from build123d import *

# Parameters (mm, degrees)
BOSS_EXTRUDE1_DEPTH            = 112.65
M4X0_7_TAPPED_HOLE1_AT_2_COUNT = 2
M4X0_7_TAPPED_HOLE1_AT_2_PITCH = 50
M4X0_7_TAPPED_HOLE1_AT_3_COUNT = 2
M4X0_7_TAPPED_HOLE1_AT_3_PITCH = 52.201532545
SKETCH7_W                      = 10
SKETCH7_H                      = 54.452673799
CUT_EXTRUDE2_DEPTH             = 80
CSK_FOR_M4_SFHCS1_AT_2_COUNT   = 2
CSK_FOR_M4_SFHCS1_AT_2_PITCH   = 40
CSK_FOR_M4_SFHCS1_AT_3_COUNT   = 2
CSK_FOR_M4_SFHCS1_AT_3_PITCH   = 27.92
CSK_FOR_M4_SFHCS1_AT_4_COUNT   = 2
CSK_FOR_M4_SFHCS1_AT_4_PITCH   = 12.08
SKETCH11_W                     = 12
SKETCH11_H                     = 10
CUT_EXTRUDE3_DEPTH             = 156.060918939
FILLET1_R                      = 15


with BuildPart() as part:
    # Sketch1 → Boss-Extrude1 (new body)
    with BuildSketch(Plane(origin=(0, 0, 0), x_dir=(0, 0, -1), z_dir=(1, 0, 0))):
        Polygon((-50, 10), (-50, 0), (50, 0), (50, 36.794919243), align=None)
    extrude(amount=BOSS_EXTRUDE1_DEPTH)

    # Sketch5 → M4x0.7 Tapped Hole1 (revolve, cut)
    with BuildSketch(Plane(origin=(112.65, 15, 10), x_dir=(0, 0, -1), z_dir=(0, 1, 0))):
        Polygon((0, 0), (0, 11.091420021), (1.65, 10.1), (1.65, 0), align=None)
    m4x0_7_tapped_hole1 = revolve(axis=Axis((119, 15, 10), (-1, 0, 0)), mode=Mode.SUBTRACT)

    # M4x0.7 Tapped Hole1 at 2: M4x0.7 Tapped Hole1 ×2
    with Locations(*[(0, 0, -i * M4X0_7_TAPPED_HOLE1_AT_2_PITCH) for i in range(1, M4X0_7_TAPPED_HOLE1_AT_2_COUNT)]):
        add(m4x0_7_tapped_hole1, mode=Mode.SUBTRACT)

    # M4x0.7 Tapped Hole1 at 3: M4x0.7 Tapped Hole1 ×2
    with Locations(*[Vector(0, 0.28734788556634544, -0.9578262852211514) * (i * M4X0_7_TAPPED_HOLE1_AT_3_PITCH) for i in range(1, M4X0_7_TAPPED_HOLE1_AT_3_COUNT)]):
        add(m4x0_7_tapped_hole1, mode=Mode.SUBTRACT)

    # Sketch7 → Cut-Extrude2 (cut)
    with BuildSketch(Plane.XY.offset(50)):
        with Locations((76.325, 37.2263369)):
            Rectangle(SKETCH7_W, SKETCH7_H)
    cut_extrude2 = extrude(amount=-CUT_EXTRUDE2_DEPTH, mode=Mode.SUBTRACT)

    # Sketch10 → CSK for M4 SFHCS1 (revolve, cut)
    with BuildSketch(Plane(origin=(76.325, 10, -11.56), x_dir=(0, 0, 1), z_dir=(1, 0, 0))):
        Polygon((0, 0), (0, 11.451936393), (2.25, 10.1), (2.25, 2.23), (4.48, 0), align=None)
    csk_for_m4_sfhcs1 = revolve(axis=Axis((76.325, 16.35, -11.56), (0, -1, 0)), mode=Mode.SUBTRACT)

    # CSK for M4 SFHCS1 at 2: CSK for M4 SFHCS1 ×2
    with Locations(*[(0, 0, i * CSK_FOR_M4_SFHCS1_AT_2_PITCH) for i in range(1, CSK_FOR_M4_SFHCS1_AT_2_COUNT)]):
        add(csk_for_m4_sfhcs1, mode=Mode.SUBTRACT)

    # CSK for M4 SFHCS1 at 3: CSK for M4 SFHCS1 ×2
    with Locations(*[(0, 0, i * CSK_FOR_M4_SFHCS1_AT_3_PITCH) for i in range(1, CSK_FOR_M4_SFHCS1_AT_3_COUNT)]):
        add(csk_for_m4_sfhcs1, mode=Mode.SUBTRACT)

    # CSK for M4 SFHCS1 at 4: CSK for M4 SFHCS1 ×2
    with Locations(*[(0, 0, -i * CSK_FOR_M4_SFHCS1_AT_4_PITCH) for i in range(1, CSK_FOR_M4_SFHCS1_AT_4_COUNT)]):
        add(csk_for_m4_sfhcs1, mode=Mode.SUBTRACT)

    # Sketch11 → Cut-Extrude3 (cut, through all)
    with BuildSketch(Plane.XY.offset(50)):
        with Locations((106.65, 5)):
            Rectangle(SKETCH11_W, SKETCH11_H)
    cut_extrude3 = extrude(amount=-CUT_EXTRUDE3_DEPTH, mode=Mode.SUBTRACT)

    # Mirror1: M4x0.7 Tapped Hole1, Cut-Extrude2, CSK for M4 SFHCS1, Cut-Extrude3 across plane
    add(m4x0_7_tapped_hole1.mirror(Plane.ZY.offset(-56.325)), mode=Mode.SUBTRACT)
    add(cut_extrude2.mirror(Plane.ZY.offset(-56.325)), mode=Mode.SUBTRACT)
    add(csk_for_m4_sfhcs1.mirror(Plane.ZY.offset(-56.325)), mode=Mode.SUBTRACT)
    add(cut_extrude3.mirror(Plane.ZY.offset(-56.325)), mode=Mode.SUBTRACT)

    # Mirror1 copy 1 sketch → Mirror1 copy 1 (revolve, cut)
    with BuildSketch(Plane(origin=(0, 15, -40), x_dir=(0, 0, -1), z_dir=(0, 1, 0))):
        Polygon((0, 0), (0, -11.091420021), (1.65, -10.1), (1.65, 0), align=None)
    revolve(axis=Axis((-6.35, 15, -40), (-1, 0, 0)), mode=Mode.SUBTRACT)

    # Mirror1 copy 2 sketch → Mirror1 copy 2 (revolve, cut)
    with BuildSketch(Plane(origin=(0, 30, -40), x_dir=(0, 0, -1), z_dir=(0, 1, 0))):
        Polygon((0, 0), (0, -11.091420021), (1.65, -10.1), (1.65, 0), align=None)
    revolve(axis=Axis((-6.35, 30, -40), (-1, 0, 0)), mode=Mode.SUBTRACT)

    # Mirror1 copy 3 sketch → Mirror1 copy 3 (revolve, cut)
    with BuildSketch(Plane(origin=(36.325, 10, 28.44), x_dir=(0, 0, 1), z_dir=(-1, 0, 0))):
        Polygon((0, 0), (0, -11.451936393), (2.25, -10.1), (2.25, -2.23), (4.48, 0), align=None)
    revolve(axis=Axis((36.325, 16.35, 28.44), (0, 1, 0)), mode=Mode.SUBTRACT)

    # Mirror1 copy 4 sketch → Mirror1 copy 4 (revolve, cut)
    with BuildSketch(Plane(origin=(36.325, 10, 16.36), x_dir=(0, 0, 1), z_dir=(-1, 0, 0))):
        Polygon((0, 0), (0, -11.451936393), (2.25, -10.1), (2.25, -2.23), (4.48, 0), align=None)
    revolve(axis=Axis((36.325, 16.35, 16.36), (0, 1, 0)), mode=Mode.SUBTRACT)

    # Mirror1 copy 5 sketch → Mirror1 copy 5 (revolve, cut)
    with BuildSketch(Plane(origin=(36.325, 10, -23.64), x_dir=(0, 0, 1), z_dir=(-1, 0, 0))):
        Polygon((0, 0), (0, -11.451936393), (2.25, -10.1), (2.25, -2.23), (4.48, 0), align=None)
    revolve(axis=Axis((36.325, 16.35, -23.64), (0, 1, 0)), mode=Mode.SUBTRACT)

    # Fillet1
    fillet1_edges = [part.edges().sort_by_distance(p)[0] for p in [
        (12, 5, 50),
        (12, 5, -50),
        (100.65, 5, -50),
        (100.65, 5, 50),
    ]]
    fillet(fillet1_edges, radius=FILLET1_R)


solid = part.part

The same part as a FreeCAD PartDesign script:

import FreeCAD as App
import Part
import Sketcher

V = App.Vector
Q = App.Units.Quantity


def edges_at(feature, points):
    """Names of the edges that pass closest to the given points."""
    edges = feature.Shape.Edges
    near = lambda p: min(range(len(edges)), key=lambda i: edges[i].distToShape(Part.Vertex(*p))[0])
    return sorted({f"Edge{near(p) + 1}" for p in points})


def add_polygon(sketch, points):
    """Adds a closed chain of lines whose ends are joined by coincident constraints."""
    first, n = sketch.GeometryCount, len(points)
    for a, b in zip(points, points[1:] + points[:1]):
        sketch.addGeometry(Part.LineSegment(App.Vector(*a, 0), App.Vector(*b, 0)), False)
    for i in range(n):
        sketch.addConstraint(Sketcher.Constraint("Coincident", first + i, 2, first + (i + 1) % n, 1))

doc = App.newDocument("Part")
body = doc.addObject("PartDesign::Body", "Body")

# Sketch on YZ plane
sketch1 = doc.addObject("Sketcher::SketchObject", "Sketch")
body.addObject(sketch1)
sketch1.AttachmentSupport = (doc.YZ_Plane, [""])
sketch1.MapMode = "FlatFace"
add_polygon(sketch1, [(10, 50), (0, 50), (0, -50), (36.794919, -50)])  # lines 0-3
sketch1.addConstraint([
    Sketcher.Constraint("Horizontal", 0),
    Sketcher.Constraint("Vertical", 1),
    Sketcher.Constraint("Horizontal", 2),
    Sketcher.Constraint("Symmetric", 0, 2, 1, 2, -1, 1),
    Sketcher.Constraint("DistanceX", 0, 2, 0, 1, 10.0),
    Sketcher.Constraint("DistanceY", 1, 2, 1, 1, 100.0),
    Sketcher.Constraint("Angle", 3, Q("105 deg")),
])
pad1 = doc.addObject("PartDesign::Pad", "Pad")
body.addObject(pad1)
pad1.Profile = sketch1
pad1.Length = 112.65

# Sketch on XZ plane
sketch2 = doc.addObject("Sketcher::SketchObject", "Sketch001")
body.addObject(sketch2)
sketch2.AttachmentSupport = (doc.XZ_Plane, [""])
sketch2.MapMode = "FlatFace"
sketch2.AttachmentOffset = App.Placement(V(0, 0, -15), App.Rotation())
add_polygon(sketch2, [(101.55858, 10), (112.65, 10), (112.65, 8.35), (102.55, 8.35)])  # lines 0-3
sketch2.addGeometry(Part.LineSegment(V(112.65, 10, 0), V(101.55858, 10, 0)), True)  # axis
sketch2.addConstraint([
    Sketcher.Constraint("Horizontal", 0),
    Sketcher.Constraint("Vertical", 1),
    Sketcher.Constraint("Horizontal", 2),
    Sketcher.Constraint("Horizontal", 4),
    Sketcher.Constraint("Coincident", 4, 1, 0, 2),
    Sketcher.Constraint("Equal", 0, 4),
    Sketcher.Constraint("Angle", 3, Q("121 deg")),
    Sketcher.Constraint("DistanceX", 2, 2, 2, 1, 10.1),
    Sketcher.Constraint("DistanceY", -1, 1, 0, 2, 10.0),
    Sketcher.Constraint("DistanceY", 1, 2, 1, 1, 1.65),
    Sketcher.Constraint("DistanceX", -1, 1, 0, 2, 112.65),
])
groove = doc.addObject("PartDesign::Groove", "Groove")
body.addObject(groove)
groove.Profile = sketch2
groove.ReferenceAxis = (sketch2, ["Axis0"])
groove.Angle = 360
doc.recompute()

linearpattern = doc.addObject("PartDesign::LinearPattern", "LinearPattern")
body.addObject(linearpattern)
linearpattern.Originals = [groove]
linearpattern.Direction = (doc.Z_Axis, [""])
linearpattern.Mode = "offset"
linearpattern.Offset = 50
linearpattern.Occurrences = 2
linearpattern.Reversed = True
body.Tip = linearpattern
doc.recompute()

datumline = doc.addObject("PartDesign::Line", "DatumLine")
body.addObject(datumline)
datumline.Placement = App.Placement(V(0, 0, 0), App.Rotation(V(0, 0, 1), V(0, 0.287347886, -0.957826285)))
linearpattern2 = doc.addObject("PartDesign::LinearPattern", "LinearPattern001")
body.addObject(linearpattern2)
linearpattern2.Originals = [groove]
linearpattern2.Direction = (datumline, [""])
linearpattern2.Mode = "offset"
linearpattern2.Offset = 52.201533
linearpattern2.Occurrences = 2
body.Tip = linearpattern2

# Sketch on XY plane
sketch3 = doc.addObject("Sketcher::SketchObject", "Sketch002")
body.addObject(sketch3)
sketch3.AttachmentSupport = (doc.XY_Plane, [""])
sketch3.MapMode = "FlatFace"
sketch3.AttachmentOffset = App.Placement(V(0, 0, 50), App.Rotation())
add_polygon(sketch3, [(71.325, 64.452674), (71.325, 10), (81.325, 10), (81.325, 64.452674)])  # lines 0-3
sketch3.addConstraint([
    Sketcher.Constraint("Vertical", 0),
    Sketcher.Constraint("Horizontal", 1),
    Sketcher.Constraint("Vertical", 2),
    Sketcher.Constraint("Horizontal", 3),
    Sketcher.Constraint("DistanceX", 1, 1, 1, 2, 10.0),
    Sketcher.Constraint("DistanceY", -1, 1, 0, 2, 10.0),
    Sketcher.Constraint("DistanceX", -1, 1, 0, 2, 71.325),
    Sketcher.Constraint("DistanceY", 0, 2, 0, 1, 54.452674),
])
pocket1 = doc.addObject("PartDesign::Pocket", "Pocket")
body.addObject(pocket1)
pocket1.Profile = sketch3
pocket1.Length = 80

# Sketch on YZ plane
sketch4 = doc.addObject("Sketcher::SketchObject", "Sketch003")
body.addObject(sketch4)
sketch4.AttachmentSupport = (doc.YZ_Plane, [""])
sketch4.MapMode = "FlatFace"
sketch4.AttachmentOffset = App.Placement(V(0, 0, 76.325), App.Rotation())
add_polygon(sketch4, [(-1.451936, -11.56), (10, -11.56), (10, -7.08), (7.77, -9.31), (-0.1, -9.31)])  # lines 0-4
sketch4.addGeometry(Part.LineSegment(V(10, -11.56, 0), V(-1.451936, -11.56, 0)), True)  # axis
sketch4.addConstraint([
    Sketcher.Constraint("Horizontal", 0),
    Sketcher.Constraint("Vertical", 1),
    Sketcher.Constraint("Horizontal", 3),
    Sketcher.Constraint("Horizontal", 5),
    Sketcher.Constraint("Coincident", 5, 1, 0, 2),
    Sketcher.Constraint("Equal", 0, 5),
    Sketcher.Constraint("Angle", 2, Q("-135 deg")),
    Sketcher.Constraint("Angle", 4, Q("-121 deg")),
    Sketcher.Constraint("DistanceX", -1, 1, 0, 2, 10.0),
    Sketcher.Constraint("DistanceX", 3, 2, 3, 1, 7.87),
    Sketcher.Constraint("DistanceY", 1, 1, 1, 2, 4.48),
    Sketcher.Constraint("DistanceX", 3, 2, -1, 1, 0.1),
    Sketcher.Constraint("DistanceY", 0, 2, -1, 1, 11.56),
])
groove2 = doc.addObject("PartDesign::Groove", "Groove001")
body.addObject(groove2)
groove2.Profile = sketch4
groove2.ReferenceAxis = (sketch4, ["Axis0"])
groove2.Angle = 360
doc.recompute()

linearpattern3 = doc.addObject("PartDesign::LinearPattern", "LinearPattern002")
body.addObject(linearpattern3)
linearpattern3.Originals = [groove2]
linearpattern3.Direction = (doc.Z_Axis, [""])
linearpattern3.Mode = "offset"
linearpattern3.Offset = 40
linearpattern3.Occurrences = 2
body.Tip = linearpattern3
doc.recompute()

linearpattern4 = doc.addObject("PartDesign::LinearPattern", "LinearPattern003")
body.addObject(linearpattern4)
linearpattern4.Originals = [groove2]
linearpattern4.Direction = (doc.Z_Axis, [""])
linearpattern4.Mode = "offset"
linearpattern4.Offset = 27.92
linearpattern4.Occurrences = 2
body.Tip = linearpattern4
doc.recompute()

linearpattern5 = doc.addObject("PartDesign::LinearPattern", "LinearPattern004")
body.addObject(linearpattern5)
linearpattern5.Originals = [groove2]
linearpattern5.Direction = (doc.Z_Axis, [""])
linearpattern5.Mode = "offset"
linearpattern5.Offset = 12.08
linearpattern5.Occurrences = 2
linearpattern5.Reversed = True
body.Tip = linearpattern5

# Sketch on XY plane
sketch5 = doc.addObject("Sketcher::SketchObject", "Sketch004")
body.addObject(sketch5)
sketch5.AttachmentSupport = (doc.XY_Plane, [""])
sketch5.MapMode = "FlatFace"
sketch5.AttachmentOffset = App.Placement(V(0, 0, 50), App.Rotation())
add_polygon(sketch5, [(100.65, 10), (100.65, 0), (112.65, 0), (112.65, 10)])  # lines 0-3
sketch5.addConstraint([
    Sketcher.Constraint("Vertical", 0),
    Sketcher.Constraint("Horizontal", 1),
    Sketcher.Constraint("Vertical", 2),
    Sketcher.Constraint("Horizontal", 3),
    Sketcher.Constraint("PointOnObject", 0, 2, -1),
    Sketcher.Constraint("DistanceX", 1, 1, 1, 2, 12.0),
    Sketcher.Constraint("DistanceY", 0, 2, 0, 1, 10.0),
    Sketcher.Constraint("DistanceX", -1, 1, 0, 2, 100.65),
])
pocket2 = doc.addObject("PartDesign::Pocket", "Pocket001")
body.addObject(pocket2)
pocket2.Profile = sketch5
pocket2.Type = "ThroughAll"
doc.recompute()

datumplane = doc.addObject("PartDesign::Plane", "DatumPlane")
body.addObject(datumplane)
datumplane.AttachmentSupport = (doc.YZ_Plane, [""])
datumplane.MapMode = "FlatFace"
datumplane.AttachmentOffset = App.Placement(V(0, 0, 56.325), App.Rotation())
mirrored = doc.addObject("PartDesign::Mirrored", "Mirrored")
body.addObject(mirrored)
mirrored.Originals = [groove, pocket1, groove2, pocket2]
mirrored.MirrorPlane = (datumplane, [""])
body.Tip = mirrored

# Sketch on XZ plane
sketch6 = doc.addObject("Sketcher::SketchObject", "Sketch005")
body.addObject(sketch6)
sketch6.AttachmentSupport = (doc.XZ_Plane, [""])
sketch6.MapMode = "FlatFace"
sketch6.AttachmentOffset = App.Placement(V(0, 0, -15), App.Rotation())
add_polygon(sketch6, [(0, -40), (11.09142, -40), (10.1, -41.65), (0, -41.65)])  # lines 0-3
sketch6.addGeometry(Part.LineSegment(V(11.09142, -40, 0), V(0, -40, 0)), True)  # axis
sketch6.addConstraint([
    Sketcher.Constraint("Horizontal", 0),
    Sketcher.Constraint("Horizontal", 2),
    Sketcher.Constraint("Vertical", 3),
    Sketcher.Constraint("Horizontal", 4),
    Sketcher.Constraint("Coincident", 4, 1, 0, 2),
    Sketcher.Constraint("PointOnObject", 2, 2, -2),
    Sketcher.Constraint("PointOnObject", 4, 2, -2),
    Sketcher.Constraint("Angle", 1, Q("-121 deg")),
    Sketcher.Constraint("DistanceX", 2, 2, 2, 1, 10.1),
    Sketcher.Constraint("DistanceY", 0, 2, -1, 1, 40.0),
    Sketcher.Constraint("DistanceY", 3, 1, 3, 2, 1.65),
])
groove3 = doc.addObject("PartDesign::Groove", "Groove002")
body.addObject(groove3)
groove3.Profile = sketch6
groove3.ReferenceAxis = (sketch6, ["Axis0"])
groove3.Angle = 360

# Sketch on XZ plane
sketch7 = doc.addObject("Sketcher::SketchObject", "Sketch006")
body.addObject(sketch7)
sketch7.AttachmentSupport = (doc.XZ_Plane, [""])
sketch7.MapMode = "FlatFace"
sketch7.AttachmentOffset = App.Placement(V(0, 0, -30), App.Rotation())
add_polygon(sketch7, [(0, -40), (11.09142, -40), (10.1, -41.65), (0, -41.65)])  # lines 0-3
sketch7.addGeometry(Part.LineSegment(V(11.09142, -40, 0), V(0, -40, 0)), True)  # axis
sketch7.addConstraint([
    Sketcher.Constraint("Horizontal", 0),
    Sketcher.Constraint("Horizontal", 2),
    Sketcher.Constraint("Vertical", 3),
    Sketcher.Constraint("Horizontal", 4),
    Sketcher.Constraint("Coincident", 4, 1, 0, 2),
    Sketcher.Constraint("PointOnObject", 2, 2, -2),
    Sketcher.Constraint("PointOnObject", 4, 2, -2),
    Sketcher.Constraint("Angle", 1, Q("-121 deg")),
    Sketcher.Constraint("DistanceX", 2, 2, 2, 1, 10.1),
    Sketcher.Constraint("DistanceY", 0, 2, -1, 1, 40.0),
    Sketcher.Constraint("DistanceY", 3, 1, 3, 2, 1.65),
])
groove4 = doc.addObject("PartDesign::Groove", "Groove003")
body.addObject(groove4)
groove4.Profile = sketch7
groove4.ReferenceAxis = (sketch7, ["Axis0"])
groove4.Angle = 360

# Sketch on YZ plane
sketch8 = doc.addObject("Sketcher::SketchObject", "Sketch007")
body.addObject(sketch8)
sketch8.AttachmentSupport = (doc.YZ_Plane, [""])
sketch8.MapMode = "FlatFace"
sketch8.AttachmentOffset = App.Placement(V(0, 0, 36.325), App.Rotation())
add_polygon(sketch8, [(10, 28.44), (-1.451936, 28.44), (-0.1, 30.69), (7.77, 30.69), (10, 32.92)])  # lines 0-4
sketch8.addGeometry(Part.LineSegment(V(-1.451936, 28.44, 0), V(10, 28.44, 0)), True)  # axis
sketch8.addConstraint([
    Sketcher.Constraint("Horizontal", 0),
    Sketcher.Constraint("Horizontal", 2),
    Sketcher.Constraint("Vertical", 4),
    Sketcher.Constraint("Horizontal", 5),
    Sketcher.Constraint("Coincident", 5, 1, 0, 2),
    Sketcher.Constraint("Vertical", 3, 2, 5, 2),
    Sketcher.Constraint("Angle", 1, Q("59 deg")),
    Sketcher.Constraint("Angle", 3, Q("45 deg")),
    Sketcher.Constraint("DistanceX", -1, 1, 3, 2, 10.0),
    Sketcher.Constraint("DistanceX", 2, 1, 2, 2, 7.87),
    Sketcher.Constraint("DistanceY", 4, 2, 4, 1, 4.48),
    Sketcher.Constraint("DistanceX", 1, 2, -1, 1, 0.1),
    Sketcher.Constraint("DistanceY", -1, 1, 0, 2, 28.44),
])
groove5 = doc.addObject("PartDesign::Groove", "Groove004")
body.addObject(groove5)
groove5.Profile = sketch8
groove5.ReferenceAxis = (sketch8, ["Axis0"])
groove5.Angle = 360

# Sketch on YZ plane
sketch9 = doc.addObject("Sketcher::SketchObject", "Sketch008")
body.addObject(sketch9)
sketch9.AttachmentSupport = (doc.YZ_Plane, [""])
sketch9.MapMode = "FlatFace"
sketch9.AttachmentOffset = App.Placement(V(0, 0, 36.325), App.Rotation())
add_polygon(sketch9, [(10, 16.36), (-1.451936, 16.36), (-0.1, 18.61), (7.77, 18.61), (10, 20.84)])  # lines 0-4
sketch9.addGeometry(Part.LineSegment(V(-1.451936, 16.36, 0), V(10, 16.36, 0)), True)  # axis
sketch9.addConstraint([
    Sketcher.Constraint("Horizontal", 0),
    Sketcher.Constraint("Horizontal", 2),
    Sketcher.Constraint("Vertical", 4),
    Sketcher.Constraint("Horizontal", 5),
    Sketcher.Constraint("Coincident", 5, 1, 0, 2),
    Sketcher.Constraint("Vertical", 3, 2, 5, 2),
    Sketcher.Constraint("Angle", 1, Q("59 deg")),
    Sketcher.Constraint("Angle", 3, Q("45 deg")),
    Sketcher.Constraint("DistanceX", -1, 1, 3, 2, 10.0),
    Sketcher.Constraint("DistanceX", 2, 1, 2, 2, 7.87),
    Sketcher.Constraint("DistanceY", 4, 2, 4, 1, 4.48),
    Sketcher.Constraint("DistanceX", 1, 2, -1, 1, 0.1),
    Sketcher.Constraint("DistanceY", -1, 1, 0, 2, 16.36),
])
groove6 = doc.addObject("PartDesign::Groove", "Groove005")
body.addObject(groove6)
groove6.Profile = sketch9
groove6.ReferenceAxis = (sketch9, ["Axis0"])
groove6.Angle = 360

# Sketch on YZ plane
sketch10 = doc.addObject("Sketcher::SketchObject", "Sketch009")
body.addObject(sketch10)
sketch10.AttachmentSupport = (doc.YZ_Plane, [""])
sketch10.MapMode = "FlatFace"
sketch10.AttachmentOffset = App.Placement(V(0, 0, 36.325), App.Rotation())
add_polygon(sketch10, [(10, -23.64), (-1.451936, -23.64), (-0.1, -21.39), (7.77, -21.39), (10, -19.16)])  # lines 0-4
sketch10.addGeometry(Part.LineSegment(V(-1.451936, -23.64, 0), V(10, -23.64, 0)), True)  # axis
sketch10.addConstraint([
    Sketcher.Constraint("Horizontal", 0),
    Sketcher.Constraint("Horizontal", 2),
    Sketcher.Constraint("Vertical", 4),
    Sketcher.Constraint("Horizontal", 5),
    Sketcher.Constraint("Coincident", 5, 1, 0, 2),
    Sketcher.Constraint("Vertical", 3, 2, 5, 2),
    Sketcher.Constraint("Angle", 1, Q("59 deg")),
    Sketcher.Constraint("Angle", 3, Q("45 deg")),
    Sketcher.Constraint("DistanceX", -1, 1, 3, 2, 10.0),
    Sketcher.Constraint("DistanceX", 2, 1, 2, 2, 7.87),
    Sketcher.Constraint("DistanceY", 4, 2, 4, 1, 4.48),
    Sketcher.Constraint("DistanceX", 1, 2, -1, 1, 0.1),
    Sketcher.Constraint("DistanceY", 0, 2, -1, 1, 23.64),
])
groove7 = doc.addObject("PartDesign::Groove", "Groove006")
body.addObject(groove7)
groove7.Profile = sketch10
groove7.ReferenceAxis = (sketch10, ["Axis0"])
groove7.Angle = 360
doc.recompute()

fillet = doc.addObject("PartDesign::Fillet", "Fillet")
body.addObject(fillet)
fillet.Base = (groove7, edges_at(groove7, [
    (12, 5, 50),
    (12, 5, -50),
    (100.65, 5, -50),
    (100.65, 5, 50),
]))
fillet.Radius = 15

doc.recompute()
